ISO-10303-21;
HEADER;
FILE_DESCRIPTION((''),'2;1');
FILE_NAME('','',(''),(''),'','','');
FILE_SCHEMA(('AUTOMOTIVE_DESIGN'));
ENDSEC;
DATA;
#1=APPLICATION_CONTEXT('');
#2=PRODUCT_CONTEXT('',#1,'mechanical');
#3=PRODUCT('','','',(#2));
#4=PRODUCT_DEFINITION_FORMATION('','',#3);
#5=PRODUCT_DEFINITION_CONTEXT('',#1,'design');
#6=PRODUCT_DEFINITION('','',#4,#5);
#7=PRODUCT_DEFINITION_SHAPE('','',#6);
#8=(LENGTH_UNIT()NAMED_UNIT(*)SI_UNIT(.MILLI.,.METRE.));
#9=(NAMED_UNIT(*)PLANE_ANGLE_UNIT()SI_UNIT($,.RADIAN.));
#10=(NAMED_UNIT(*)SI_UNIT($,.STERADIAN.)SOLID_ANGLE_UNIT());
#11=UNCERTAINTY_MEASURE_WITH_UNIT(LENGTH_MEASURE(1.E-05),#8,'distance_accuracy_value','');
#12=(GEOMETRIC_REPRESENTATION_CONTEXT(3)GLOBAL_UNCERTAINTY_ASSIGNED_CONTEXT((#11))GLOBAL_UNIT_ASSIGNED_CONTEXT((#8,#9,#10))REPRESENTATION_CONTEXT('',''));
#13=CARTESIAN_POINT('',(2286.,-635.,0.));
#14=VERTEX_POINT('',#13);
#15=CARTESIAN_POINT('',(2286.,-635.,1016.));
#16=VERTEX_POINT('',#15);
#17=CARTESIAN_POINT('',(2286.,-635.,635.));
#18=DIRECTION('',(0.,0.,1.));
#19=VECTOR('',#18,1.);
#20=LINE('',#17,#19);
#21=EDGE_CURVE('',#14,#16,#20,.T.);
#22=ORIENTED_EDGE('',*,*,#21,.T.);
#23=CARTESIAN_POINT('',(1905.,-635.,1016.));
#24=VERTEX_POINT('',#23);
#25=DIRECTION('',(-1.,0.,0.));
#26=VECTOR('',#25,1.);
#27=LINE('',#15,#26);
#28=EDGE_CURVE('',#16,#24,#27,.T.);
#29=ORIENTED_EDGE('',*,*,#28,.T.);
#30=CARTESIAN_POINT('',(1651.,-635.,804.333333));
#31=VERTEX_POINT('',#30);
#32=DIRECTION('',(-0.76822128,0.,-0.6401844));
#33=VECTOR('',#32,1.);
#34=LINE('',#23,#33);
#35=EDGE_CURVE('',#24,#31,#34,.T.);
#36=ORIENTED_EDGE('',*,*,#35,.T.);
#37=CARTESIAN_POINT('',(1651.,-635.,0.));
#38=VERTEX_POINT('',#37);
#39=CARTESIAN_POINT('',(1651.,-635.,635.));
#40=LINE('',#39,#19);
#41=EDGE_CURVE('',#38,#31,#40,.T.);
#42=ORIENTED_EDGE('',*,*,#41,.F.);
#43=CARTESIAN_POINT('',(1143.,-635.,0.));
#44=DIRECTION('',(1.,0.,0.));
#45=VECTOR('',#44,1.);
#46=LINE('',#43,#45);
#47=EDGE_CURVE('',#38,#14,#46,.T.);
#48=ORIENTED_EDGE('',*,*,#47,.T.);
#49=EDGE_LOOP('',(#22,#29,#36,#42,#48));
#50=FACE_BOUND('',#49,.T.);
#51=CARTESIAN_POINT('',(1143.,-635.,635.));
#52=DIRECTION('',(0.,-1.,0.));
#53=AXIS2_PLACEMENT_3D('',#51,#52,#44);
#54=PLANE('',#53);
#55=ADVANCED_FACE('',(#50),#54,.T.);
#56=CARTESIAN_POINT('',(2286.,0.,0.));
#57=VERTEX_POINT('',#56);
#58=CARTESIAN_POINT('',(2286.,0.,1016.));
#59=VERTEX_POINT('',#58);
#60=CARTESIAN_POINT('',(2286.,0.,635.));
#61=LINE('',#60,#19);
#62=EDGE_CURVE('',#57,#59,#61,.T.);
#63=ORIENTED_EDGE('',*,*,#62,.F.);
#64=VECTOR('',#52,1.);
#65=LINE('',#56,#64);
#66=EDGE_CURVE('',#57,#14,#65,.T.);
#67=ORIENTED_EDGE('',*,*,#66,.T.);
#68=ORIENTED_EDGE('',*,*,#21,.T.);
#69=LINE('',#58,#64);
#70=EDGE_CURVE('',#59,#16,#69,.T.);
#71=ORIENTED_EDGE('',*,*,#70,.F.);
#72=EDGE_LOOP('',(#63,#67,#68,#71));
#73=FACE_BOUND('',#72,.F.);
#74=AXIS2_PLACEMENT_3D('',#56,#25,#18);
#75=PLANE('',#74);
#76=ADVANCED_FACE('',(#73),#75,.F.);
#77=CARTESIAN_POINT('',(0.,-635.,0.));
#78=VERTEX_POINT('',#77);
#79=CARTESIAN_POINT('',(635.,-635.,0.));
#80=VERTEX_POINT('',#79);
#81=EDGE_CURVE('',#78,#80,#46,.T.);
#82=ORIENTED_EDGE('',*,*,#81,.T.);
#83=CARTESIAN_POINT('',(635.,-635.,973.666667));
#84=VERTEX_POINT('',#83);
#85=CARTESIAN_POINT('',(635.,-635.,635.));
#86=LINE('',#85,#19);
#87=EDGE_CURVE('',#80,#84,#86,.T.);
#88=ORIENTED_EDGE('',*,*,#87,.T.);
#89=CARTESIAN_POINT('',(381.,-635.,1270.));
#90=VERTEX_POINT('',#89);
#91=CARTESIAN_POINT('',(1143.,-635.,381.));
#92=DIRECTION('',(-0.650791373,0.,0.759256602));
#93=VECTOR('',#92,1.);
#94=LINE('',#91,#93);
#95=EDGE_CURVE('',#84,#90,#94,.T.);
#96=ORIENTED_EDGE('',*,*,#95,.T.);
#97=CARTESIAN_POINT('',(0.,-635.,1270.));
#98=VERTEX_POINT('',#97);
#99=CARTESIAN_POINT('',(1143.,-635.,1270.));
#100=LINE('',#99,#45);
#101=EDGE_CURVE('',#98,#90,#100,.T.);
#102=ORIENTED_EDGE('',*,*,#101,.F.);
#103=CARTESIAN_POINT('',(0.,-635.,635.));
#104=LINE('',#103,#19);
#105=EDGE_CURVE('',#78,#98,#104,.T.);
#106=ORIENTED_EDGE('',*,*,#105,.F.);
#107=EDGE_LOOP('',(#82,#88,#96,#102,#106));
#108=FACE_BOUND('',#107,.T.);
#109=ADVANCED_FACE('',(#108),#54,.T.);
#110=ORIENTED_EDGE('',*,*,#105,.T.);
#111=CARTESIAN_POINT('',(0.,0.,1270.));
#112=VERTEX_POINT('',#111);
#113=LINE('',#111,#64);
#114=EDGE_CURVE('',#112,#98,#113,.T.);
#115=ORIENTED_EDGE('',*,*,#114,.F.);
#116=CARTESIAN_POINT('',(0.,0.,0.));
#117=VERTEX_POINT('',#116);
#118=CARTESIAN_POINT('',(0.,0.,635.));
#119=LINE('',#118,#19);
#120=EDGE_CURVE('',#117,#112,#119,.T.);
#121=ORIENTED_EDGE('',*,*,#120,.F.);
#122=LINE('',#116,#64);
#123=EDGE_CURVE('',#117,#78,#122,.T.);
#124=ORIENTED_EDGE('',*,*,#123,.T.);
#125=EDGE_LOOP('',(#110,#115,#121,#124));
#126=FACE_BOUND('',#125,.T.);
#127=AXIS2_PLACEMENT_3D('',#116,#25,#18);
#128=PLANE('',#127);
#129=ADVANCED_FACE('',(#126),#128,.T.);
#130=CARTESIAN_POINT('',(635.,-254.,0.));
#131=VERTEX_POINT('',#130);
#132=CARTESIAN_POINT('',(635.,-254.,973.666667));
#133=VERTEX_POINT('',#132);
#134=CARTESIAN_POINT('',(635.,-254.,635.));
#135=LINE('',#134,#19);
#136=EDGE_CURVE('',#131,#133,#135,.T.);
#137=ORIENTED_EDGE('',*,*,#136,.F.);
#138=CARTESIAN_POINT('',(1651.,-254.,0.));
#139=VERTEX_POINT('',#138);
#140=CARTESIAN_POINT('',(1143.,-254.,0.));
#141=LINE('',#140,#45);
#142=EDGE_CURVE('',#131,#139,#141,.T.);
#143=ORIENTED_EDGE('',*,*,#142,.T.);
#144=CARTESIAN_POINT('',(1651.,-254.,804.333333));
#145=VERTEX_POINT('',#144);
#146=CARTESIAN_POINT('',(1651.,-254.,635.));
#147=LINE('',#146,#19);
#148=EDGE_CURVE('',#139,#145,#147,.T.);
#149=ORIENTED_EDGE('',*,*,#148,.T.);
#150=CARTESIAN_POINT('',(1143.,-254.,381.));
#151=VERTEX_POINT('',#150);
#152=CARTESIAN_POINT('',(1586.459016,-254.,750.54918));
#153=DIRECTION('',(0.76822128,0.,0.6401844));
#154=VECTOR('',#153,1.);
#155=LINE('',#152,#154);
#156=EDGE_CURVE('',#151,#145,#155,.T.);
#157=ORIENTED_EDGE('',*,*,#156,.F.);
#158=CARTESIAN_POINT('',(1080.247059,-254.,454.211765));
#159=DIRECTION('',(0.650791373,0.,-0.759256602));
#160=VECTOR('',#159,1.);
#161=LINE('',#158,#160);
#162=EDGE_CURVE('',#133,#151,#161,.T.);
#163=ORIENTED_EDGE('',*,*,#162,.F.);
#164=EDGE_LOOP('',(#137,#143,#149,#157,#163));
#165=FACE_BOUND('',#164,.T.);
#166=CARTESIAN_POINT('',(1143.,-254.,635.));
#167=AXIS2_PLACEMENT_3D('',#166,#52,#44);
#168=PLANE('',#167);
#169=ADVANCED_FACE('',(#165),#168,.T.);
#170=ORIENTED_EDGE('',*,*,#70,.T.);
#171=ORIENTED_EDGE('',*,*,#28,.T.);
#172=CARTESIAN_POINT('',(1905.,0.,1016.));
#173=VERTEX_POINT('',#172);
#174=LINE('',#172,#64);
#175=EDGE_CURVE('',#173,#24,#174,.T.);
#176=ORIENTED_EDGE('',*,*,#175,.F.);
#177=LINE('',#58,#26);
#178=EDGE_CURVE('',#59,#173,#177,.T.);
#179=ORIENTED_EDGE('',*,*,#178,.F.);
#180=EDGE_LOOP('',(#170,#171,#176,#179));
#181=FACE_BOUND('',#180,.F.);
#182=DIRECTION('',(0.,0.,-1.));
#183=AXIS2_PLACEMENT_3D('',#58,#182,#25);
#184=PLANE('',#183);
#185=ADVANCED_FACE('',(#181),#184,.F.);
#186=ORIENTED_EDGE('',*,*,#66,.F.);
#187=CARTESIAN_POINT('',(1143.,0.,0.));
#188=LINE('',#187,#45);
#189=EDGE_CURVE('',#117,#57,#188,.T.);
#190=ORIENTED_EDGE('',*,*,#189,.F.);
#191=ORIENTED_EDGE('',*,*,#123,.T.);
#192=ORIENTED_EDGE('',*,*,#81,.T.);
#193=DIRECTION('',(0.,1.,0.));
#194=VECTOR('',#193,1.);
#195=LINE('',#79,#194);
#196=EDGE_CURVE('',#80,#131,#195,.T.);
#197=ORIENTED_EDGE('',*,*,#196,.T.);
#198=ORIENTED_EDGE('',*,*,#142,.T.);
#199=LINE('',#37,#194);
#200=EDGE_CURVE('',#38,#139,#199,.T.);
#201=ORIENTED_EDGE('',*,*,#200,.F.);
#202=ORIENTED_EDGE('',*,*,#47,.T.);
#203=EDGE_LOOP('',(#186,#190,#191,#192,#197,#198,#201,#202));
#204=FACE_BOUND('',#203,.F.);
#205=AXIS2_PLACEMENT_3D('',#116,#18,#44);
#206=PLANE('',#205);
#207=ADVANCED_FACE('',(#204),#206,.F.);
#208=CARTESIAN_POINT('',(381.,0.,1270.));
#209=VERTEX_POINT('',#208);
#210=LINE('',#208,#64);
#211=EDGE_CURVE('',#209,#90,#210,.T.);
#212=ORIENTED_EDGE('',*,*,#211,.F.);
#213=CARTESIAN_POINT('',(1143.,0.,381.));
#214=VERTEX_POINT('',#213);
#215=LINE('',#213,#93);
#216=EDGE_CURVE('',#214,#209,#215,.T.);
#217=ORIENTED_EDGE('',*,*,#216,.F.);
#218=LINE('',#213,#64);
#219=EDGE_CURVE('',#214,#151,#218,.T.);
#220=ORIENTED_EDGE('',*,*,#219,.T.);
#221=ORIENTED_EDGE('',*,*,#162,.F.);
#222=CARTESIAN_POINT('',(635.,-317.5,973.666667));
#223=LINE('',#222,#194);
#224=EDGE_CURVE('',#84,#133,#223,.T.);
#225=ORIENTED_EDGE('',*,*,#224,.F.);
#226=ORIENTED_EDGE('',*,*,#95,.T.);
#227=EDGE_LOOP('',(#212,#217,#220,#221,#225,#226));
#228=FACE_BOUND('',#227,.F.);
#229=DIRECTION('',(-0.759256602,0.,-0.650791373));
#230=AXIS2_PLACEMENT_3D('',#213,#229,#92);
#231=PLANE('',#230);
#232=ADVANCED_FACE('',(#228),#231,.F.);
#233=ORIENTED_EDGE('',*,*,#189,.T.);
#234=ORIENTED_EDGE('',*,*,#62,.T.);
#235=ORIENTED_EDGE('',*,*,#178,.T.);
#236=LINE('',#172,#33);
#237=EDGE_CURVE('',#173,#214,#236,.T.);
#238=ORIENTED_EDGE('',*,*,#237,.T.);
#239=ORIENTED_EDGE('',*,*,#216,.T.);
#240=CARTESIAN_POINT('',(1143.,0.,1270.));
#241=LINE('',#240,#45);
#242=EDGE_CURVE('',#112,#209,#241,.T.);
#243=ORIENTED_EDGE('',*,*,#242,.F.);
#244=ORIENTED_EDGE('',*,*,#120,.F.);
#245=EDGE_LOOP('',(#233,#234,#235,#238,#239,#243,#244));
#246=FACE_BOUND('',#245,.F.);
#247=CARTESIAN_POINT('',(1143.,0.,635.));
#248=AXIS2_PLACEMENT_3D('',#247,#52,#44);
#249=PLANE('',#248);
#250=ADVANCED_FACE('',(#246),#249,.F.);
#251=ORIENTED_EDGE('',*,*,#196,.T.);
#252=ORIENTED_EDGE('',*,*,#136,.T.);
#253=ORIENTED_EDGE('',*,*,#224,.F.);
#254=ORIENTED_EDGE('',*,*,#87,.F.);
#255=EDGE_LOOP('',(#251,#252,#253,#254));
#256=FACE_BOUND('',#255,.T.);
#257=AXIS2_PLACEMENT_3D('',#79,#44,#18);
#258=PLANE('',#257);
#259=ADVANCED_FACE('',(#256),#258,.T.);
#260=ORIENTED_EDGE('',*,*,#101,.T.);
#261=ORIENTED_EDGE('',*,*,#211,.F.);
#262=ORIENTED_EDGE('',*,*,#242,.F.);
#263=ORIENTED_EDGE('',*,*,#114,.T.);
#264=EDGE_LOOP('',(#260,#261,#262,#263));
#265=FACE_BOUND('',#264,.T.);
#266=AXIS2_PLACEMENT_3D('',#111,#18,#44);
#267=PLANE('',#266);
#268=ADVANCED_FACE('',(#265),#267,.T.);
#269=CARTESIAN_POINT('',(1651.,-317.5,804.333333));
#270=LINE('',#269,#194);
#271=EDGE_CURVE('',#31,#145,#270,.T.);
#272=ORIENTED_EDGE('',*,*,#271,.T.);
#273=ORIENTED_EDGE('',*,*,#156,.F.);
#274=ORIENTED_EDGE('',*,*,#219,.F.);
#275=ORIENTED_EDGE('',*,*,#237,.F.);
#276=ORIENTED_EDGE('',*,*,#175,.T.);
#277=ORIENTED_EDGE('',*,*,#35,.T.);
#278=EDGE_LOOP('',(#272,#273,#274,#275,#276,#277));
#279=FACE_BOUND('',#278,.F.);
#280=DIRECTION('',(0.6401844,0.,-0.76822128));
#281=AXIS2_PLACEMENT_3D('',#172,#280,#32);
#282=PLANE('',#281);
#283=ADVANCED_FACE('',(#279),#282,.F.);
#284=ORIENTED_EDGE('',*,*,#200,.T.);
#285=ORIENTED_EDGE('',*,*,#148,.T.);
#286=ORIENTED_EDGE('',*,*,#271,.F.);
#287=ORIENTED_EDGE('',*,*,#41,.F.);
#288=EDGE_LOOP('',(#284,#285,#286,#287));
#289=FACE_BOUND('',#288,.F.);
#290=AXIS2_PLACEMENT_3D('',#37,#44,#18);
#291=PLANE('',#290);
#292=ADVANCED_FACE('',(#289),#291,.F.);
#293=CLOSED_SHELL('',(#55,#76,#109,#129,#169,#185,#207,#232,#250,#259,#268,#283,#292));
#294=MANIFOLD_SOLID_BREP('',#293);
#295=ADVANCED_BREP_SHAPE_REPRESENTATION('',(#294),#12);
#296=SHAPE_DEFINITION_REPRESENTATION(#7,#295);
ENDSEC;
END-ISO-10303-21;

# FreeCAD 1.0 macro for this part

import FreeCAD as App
import Part
import Sketcher
Q = App.Units.Quantity

doc = App.newDocument("Part")
params = doc.addObject("Spreadsheet::Sheet", "Params")
for row, (alias, value) in enumerate([
    ("sketch1_width", "90 in"),
    ("sketch1_height", "50 in"),
    ("pad1_length", "25 in"),
    ("sketch2_width", "40 in"),
    ("sketch2_height", "50 in"),
    ("pocket1_length", "15 in"),
    ("sketch3_width", "75 in"),
    ("sketch3_width2", "15 in"),
    ("sketch3_height", "10 in"),
    ("pocket2_length", "25 in"),
], start=1):
    params.set(f"A{row}", alias)
    params.set(f"B{row}", "=" + value)
    params.setAlias(f"B{row}", alias)

body = doc.addObject("PartDesign::Body", "Body")

# Sketch on XZ plane
sketch1 = body.newObject("Sketcher::SketchObject", "Sketch")
sketch1.AttachmentSupport = (doc.getObject("XZ_Plane"), [""])
sketch1.MapMode = "FlatFace"
sketch1.addGeometry(Part.LineSegment(App.Vector(0, 1270, 0), App.Vector(0, 0, 0)), False)
sketch1.addGeometry(Part.LineSegment(App.Vector(0, 0, 0), App.Vector(2286, 0, 0)), False)
sketch1.addGeometry(Part.LineSegment(App.Vector(2286, 0, 0), App.Vector(2286, 1270, 0)), False)
sketch1.addGeometry(Part.LineSegment(App.Vector(2286, 1270, 0), App.Vector(0, 1270, 0)), False)
sketch1.addConstraint(Sketcher.Constraint("Coincident", 0, 2, 1, 1))
sketch1.addConstraint(Sketcher.Constraint("Coincident", 1, 2, 2, 1))
sketch1.addConstraint(Sketcher.Constraint("Coincident", 2, 2, 3, 1))
sketch1.addConstraint(Sketcher.Constraint("Coincident", 3, 2, 0, 1))
sketch1.addConstraint(Sketcher.Constraint("Vertical", 0))
sketch1.addConstraint(Sketcher.Constraint("Horizontal", 1))
sketch1.addConstraint(Sketcher.Constraint("Vertical", 2))
sketch1.addConstraint(Sketcher.Constraint("Horizontal", 3))
sketch1.addConstraint(Sketcher.Constraint("Coincident", 0, 2, -1, 1))
sketch1.addConstraint(Sketcher.Constraint("DistanceX", 1, 1, 1, 2, Q("90 in")))
sketch1.addConstraint(Sketcher.Constraint("DistanceY", 0, 2, 0, 1, Q("50 in")))
sketch1.setExpression("Constraints[9]", "Params.sketch1_width")
sketch1.setExpression("Constraints[10]", "Params.sketch1_height")
pad1 = body.newObject("PartDesign::Pad", "Pad")
pad1.Profile = sketch1
pad1.setExpression("Length", "Params.pad1_length")

# Sketch on XZ plane
sketch2 = body.newObject("Sketcher::SketchObject", "Sketch001")
sketch2.AttachmentSupport = (doc.getObject("XZ_Plane"), [""])
sketch2.MapMode = "FlatFace"
sketch2.AttachmentOffset = App.Placement(App.Vector(0, 0, 25 * 25.4), App.Rotation())
sketch2.addGeometry(Part.LineSegment(App.Vector(635, 1270, 0), App.Vector(635, 0, 0)), False)
sketch2.addGeometry(Part.LineSegment(App.Vector(635, 0, 0), App.Vector(1651, 0, 0)), False)
sketch2.addGeometry(Part.LineSegment(App.Vector(1651, 0, 0), App.Vector(1651, 1270, 0)), False)
sketch2.addGeometry(Part.LineSegment(App.Vector(1651, 1270, 0), App.Vector(635, 1270, 0)), False)
sketch2.addConstraint(Sketcher.Constraint("Coincident", 0, 2, 1, 1))
sketch2.addConstraint(Sketcher.Constraint("Coincident", 1, 2, 2, 1))
sketch2.addConstraint(Sketcher.Constraint("Coincident", 2, 2, 3, 1))
sketch2.addConstraint(Sketcher.Constraint("Coincident", 3, 2, 0, 1))
sketch2.addConstraint(Sketcher.Constraint("Vertical", 0))
sketch2.addConstraint(Sketcher.Constraint("Horizontal", 1))
sketch2.addConstraint(Sketcher.Constraint("Vertical", 2))
sketch2.addConstraint(Sketcher.Constraint("Horizontal", 3))
sketch2.addConstraint(Sketcher.Constraint("PointOnObject", 0, 2, -1))
sketch2.addConstraint(Sketcher.Constraint("DistanceX", 1, 1, 1, 2, Q("40 in")))
sketch2.addConstraint(Sketcher.Constraint("DistanceY", 0, 2, 0, 1, Q("50 in")))
sketch2.addConstraint(Sketcher.Constraint("DistanceX", -1, 1, 0, 2, Q("25 in")))
sketch2.setExpression("Constraints[9]", "Params.sketch2_width")
sketch2.setExpression("Constraints[10]", "Params.sketch2_height")
pocket1 = body.newObject("PartDesign::Pocket", "Pocket")
pocket1.Profile = sketch2
pocket1.setExpression("Length", "Params.pocket1_length")

# Sketch on XZ plane
sketch3 = body.newObject("Sketcher::SketchObject", "Sketch002")
sketch3.AttachmentSupport = (doc.getObject("XZ_Plane"), [""])
sketch3.MapMode = "FlatFace"
sketch3.addGeometry(Part.LineSegment(App.Vector(1143, 381, 0), App.Vector(381, 1270, 0)), False)
sketch3.addGeometry(Part.LineSegment(App.Vector(381, 1270, 0), App.Vector(2286, 1270, 0)), False)
sketch3.addGeometry(Part.LineSegment(App.Vector(2286, 1270, 0), App.Vector(2286, 1016, 0)), False)
sketch3.addGeometry(Part.LineSegment(App.Vector(2286, 1016, 0), App.Vector(1905, 1016, 0)), False)
sketch3.addGeometry(Part.LineSegment(App.Vector(1905, 1016, 0), App.Vector(1143, 381, 0)), False)
sketch3.addConstraint(Sketcher.Constraint("Coincident", 0, 2, 1, 1))
sketch3.addConstraint(Sketcher.Constraint("Coincident", 1, 2, 2, 1))
sketch3.addConstraint(Sketcher.Constraint("Coincident", 2, 2, 3, 1))
sketch3.addConstraint(Sketcher.Constraint("Coincident", 3, 2, 4, 1))
sketch3.addConstraint(Sketcher.Constraint("Coincident", 4, 2, 0, 1))
sketch3.addConstraint(Sketcher.Constraint("Horizontal", 1))
sketch3.addConstraint(Sketcher.Constraint("Vertical", 2))
sketch3.addConstraint(Sketcher.Constraint("Horizontal", 3))
sketch3.addConstraint(Sketcher.Constraint("DistanceX", 1, 1, 1, 2, Q("75 in")))
sketch3.addConstraint(Sketcher.Constraint("DistanceX", 3, 2, 3, 1, Q("15 in")))
sketch3.addConstraint(Sketcher.Constraint("DistanceY", 2, 2, 2, 1, Q("10 in")))
sketch3.addConstraint(Sketcher.Constraint("DistanceX", -1, 1, 0, 2, Q("15 in")))
sketch3.addConstraint(Sketcher.Constraint("DistanceY", -1, 1, 0, 2, Q("50 in")))
sketch3.addConstraint(Sketcher.Constraint("DistanceX", -1, 1, 4, 2, Q("45 in")))
sketch3.addConstraint(Sketcher.Constraint("DistanceY", -1, 1, 4, 2, Q("15 in")))
sketch3.setExpression("Constraints[8]", "Params.sketch3_width")
sketch3.setExpression("Constraints[9]", "Params.sketch3_width2")
sketch3.setExpression("Constraints[10]", "Params.sketch3_height")
pocket2 = body.newObject("PartDesign::Pocket", "Pocket001")
pocket2.Profile = sketch3
pocket2.setExpression("Length", "Params.pocket2_length")
pocket2.Reversed = True

doc.recompute()
